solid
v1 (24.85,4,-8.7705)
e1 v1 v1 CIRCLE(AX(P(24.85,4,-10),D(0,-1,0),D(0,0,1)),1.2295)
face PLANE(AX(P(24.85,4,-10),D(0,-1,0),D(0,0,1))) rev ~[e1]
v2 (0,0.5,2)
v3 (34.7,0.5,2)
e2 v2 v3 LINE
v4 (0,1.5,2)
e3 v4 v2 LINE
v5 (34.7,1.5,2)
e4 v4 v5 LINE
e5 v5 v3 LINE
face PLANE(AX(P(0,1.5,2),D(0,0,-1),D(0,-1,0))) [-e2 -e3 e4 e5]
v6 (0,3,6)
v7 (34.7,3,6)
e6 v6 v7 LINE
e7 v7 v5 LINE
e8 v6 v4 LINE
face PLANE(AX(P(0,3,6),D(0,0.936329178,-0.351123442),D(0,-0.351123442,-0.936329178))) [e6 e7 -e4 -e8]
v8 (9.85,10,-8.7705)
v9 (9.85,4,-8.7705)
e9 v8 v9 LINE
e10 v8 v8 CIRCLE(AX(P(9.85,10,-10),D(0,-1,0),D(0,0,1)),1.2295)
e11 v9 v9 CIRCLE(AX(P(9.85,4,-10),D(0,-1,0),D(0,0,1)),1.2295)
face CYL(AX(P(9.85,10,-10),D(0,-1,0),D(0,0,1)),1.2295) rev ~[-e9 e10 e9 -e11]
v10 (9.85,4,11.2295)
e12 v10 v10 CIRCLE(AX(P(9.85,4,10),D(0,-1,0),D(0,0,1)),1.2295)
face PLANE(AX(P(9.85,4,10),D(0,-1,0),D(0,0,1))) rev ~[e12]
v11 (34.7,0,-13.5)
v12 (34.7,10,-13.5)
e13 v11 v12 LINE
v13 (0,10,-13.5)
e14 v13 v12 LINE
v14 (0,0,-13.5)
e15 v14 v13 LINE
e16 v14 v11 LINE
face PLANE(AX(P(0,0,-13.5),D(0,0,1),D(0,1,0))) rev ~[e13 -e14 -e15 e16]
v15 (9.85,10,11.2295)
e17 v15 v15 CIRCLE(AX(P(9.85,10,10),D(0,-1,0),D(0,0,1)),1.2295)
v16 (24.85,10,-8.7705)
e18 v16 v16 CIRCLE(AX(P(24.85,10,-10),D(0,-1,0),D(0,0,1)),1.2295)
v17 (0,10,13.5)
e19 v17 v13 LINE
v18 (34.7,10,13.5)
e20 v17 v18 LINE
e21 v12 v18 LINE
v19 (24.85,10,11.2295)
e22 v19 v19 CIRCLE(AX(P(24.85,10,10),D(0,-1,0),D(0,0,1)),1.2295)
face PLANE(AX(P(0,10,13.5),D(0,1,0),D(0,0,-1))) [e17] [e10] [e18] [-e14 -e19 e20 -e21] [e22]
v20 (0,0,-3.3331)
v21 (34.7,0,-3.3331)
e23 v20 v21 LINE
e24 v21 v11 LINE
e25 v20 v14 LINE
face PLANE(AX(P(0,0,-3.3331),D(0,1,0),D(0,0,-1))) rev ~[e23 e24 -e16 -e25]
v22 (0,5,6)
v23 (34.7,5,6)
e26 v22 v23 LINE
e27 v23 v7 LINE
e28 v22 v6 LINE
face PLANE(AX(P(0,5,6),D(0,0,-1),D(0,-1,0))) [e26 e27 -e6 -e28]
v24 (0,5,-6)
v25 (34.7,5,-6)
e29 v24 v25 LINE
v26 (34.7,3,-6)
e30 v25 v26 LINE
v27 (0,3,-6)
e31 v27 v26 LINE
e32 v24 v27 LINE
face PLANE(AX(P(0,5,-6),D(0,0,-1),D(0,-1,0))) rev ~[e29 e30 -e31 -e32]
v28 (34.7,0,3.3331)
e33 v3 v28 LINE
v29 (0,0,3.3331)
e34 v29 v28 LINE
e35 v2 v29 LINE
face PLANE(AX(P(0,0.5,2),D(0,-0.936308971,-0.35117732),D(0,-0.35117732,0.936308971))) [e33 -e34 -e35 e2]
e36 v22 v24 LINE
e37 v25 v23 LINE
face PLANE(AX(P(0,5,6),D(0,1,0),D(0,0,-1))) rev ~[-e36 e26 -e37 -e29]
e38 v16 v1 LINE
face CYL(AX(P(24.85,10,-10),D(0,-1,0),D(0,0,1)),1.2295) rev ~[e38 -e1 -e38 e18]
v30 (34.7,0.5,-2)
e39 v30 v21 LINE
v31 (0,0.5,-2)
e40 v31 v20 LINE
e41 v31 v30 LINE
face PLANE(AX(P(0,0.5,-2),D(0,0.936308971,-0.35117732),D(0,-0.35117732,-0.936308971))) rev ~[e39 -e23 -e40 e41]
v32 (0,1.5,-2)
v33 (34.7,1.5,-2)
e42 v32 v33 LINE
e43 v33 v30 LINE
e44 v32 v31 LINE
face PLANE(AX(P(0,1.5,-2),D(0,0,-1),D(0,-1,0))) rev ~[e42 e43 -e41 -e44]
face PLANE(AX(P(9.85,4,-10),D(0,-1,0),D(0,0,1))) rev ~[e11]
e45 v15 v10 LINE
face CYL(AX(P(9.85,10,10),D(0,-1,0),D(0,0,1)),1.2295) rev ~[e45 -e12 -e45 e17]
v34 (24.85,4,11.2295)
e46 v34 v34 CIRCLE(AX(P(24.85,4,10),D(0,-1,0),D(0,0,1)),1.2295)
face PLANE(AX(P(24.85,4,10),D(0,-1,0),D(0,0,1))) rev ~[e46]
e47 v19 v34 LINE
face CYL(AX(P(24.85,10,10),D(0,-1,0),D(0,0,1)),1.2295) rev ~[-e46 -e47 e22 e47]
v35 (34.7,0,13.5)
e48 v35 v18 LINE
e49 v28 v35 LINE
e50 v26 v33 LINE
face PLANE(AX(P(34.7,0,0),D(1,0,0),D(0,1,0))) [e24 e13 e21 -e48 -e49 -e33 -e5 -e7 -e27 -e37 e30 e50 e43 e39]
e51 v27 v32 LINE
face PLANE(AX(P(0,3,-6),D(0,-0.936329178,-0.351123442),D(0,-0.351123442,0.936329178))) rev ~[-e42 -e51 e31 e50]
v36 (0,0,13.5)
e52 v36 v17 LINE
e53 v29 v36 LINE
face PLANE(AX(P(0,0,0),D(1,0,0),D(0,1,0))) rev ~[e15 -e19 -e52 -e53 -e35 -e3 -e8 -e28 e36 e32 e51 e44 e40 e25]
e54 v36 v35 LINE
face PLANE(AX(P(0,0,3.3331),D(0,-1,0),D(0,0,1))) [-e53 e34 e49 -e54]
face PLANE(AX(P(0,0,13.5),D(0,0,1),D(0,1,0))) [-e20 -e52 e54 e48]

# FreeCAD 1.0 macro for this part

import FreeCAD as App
import Part
import Sketcher

V = App.Vector

doc = App.newDocument("Part")
body = doc.addObject("PartDesign::Body", "Body")

# Sketch on YZ plane
sketch1 = body.newObject("Sketcher::SketchObject", "Sketch")
sketch1.AttachmentSupport = (doc.getObject("YZ_Plane"), [""])
sketch1.MapMode = "FlatFace"
sketch1.addGeometry(Part.LineSegment(V(3, 6, 0), V(5, 6, 0)), False)
sketch1.addGeometry(Part.LineSegment(V(5, 6, 0), V(5, -6, 0)), False)
sketch1.addGeometry(Part.LineSegment(V(5, -6, 0), V(3, -6, 0)), False)
sketch1.addGeometry(Part.LineSegment(V(3, -6, 0), V(1.5, -2, 0)), False)
sketch1.addGeometry(Part.LineSegment(V(1.5, -2, 0), V(0.5, -2, 0)), False)
sketch1.addGeometry(Part.LineSegment(V(0.5, -2, 0), V(0, -3.3, 0)), False)
sketch1.addGeometry(Part.LineSegment(V(0, -3.3, 0), V(0, -13.5, 0)), False)
sketch1.addGeometry(Part.LineSegment(V(0, -13.5, 0), V(10, -13.5, 0)), False)
sketch1.addGeometry(Part.LineSegment(V(10, -13.5, 0), V(10, 13.5, 0)), False)
sketch1.addGeometry(Part.LineSegment(V(10, 13.5, 0), V(0, 13.5, 0)), False)
sketch1.addGeometry(Part.LineSegment(V(0, 13.5, 0), V(0, 3.3, 0)), False)
sketch1.addGeometry(Part.LineSegment(V(0, 3.3, 0), V(0.5, 2, 0)), False)
sketch1.addGeometry(Part.LineSegment(V(0.5, 2, 0), V(1.5, 2, 0)), False)
sketch1.addGeometry(Part.LineSegment(V(1.5, 2, 0), V(3, 6, 0)), False)
sketch1.addConstraint(Sketcher.Constraint("Coincident", 0, 2, 1, 1))
sketch1.addConstraint(Sketcher.Constraint("Coincident", 1, 2, 2, 1))
sketch1.addConstraint(Sketcher.Constraint("Coincident", 2, 2, 3, 1))
sketch1.addConstraint(Sketcher.Constraint("Coincident", 3, 2, 4, 1))
sketch1.addConstraint(Sketcher.Constraint("Coincident", 4, 2, 5, 1))
sketch1.addConstraint(Sketcher.Constraint("Coincident", 5, 2, 6, 1))
sketch1.addConstraint(Sketcher.Constraint("Coincident", 6, 2, 7, 1))
sketch1.addConstraint(Sketcher.Constraint("Coincident", 7, 2, 8, 1))
sketch1.addConstraint(Sketcher.Constraint("Coincident", 8, 2, 9, 1))
sketch1.addConstraint(Sketcher.Constraint("Coincident", 9, 2, 10, 1))
sketch1.addConstraint(Sketcher.Constraint("Coincident", 10, 2, 11, 1))
sketch1.addConstraint(Sketcher.Constraint("Coincident", 11, 2, 12, 1))
sketch1.addConstraint(Sketcher.Constraint("Coincident", 12, 2, 13, 1))
sketch1.addConstraint(Sketcher.Constraint("Coincident", 13, 2, 0, 1))
sketch1.addConstraint(Sketcher.Constraint("Horizontal", 0))
sketch1.addConstraint(Sketcher.Constraint("Vertical", 1))
sketch1.addConstraint(Sketcher.Constraint("Horizontal", 2))
sketch1.addConstraint(Sketcher.Constraint("Horizontal", 4))
sketch1.addConstraint(Sketcher.Constraint("Vertical", 6))
sketch1.addConstraint(Sketcher.Constraint("Horizontal", 7))
sketch1.addConstraint(Sketcher.Constraint("Vertical", 8))
sketch1.addConstraint(Sketcher.Constraint("Horizontal", 9))
sketch1.addConstraint(Sketcher.Constraint("Vertical", 10))
sketch1.addConstraint(Sketcher.Constraint("Horizontal", 12))
sketch1.addConstraint(Sketcher.Constraint("Symmetric", 6, 2, 9, 2, -1, 1))
sketch1.addConstraint(Sketcher.Constraint("Symmetric", 5, 2, 10, 2, -1))
sketch1.addConstraint(Sketcher.Constraint("Symmetric", 4, 2, 11, 2, -1))
sketch1.addConstraint(Sketcher.Constraint("Symmetric", 2, 2, 13, 2, -1))
sketch1.addConstraint(Sketcher.Constraint("Parallel", 3, 11))
sketch1.addConstraint(Sketcher.Constraint("Parallel", 5, 13))
sketch1.addConstraint(Sketcher.Constraint("DistanceX", 0, 1, 0, 2, 2.0))
sketch1.addConstraint(Sketcher.Constraint("DistanceX", 4, 2, 4, 1, 1.0))
sketch1.addConstraint(Sketcher.Constraint("DistanceX", 7, 1, 7, 2, 10.0))
sketch1.addConstraint(Sketcher.Constraint("DistanceX", -1, 1, 0, 2, 5.0))
sketch1.addConstraint(Sketcher.Constraint("DistanceY", -1, 1, 0, 2, 6.0))
sketch1.addConstraint(Sketcher.Constraint("DistanceY", 3, 2, -1, 1, 2.0))
sketch1.addConstraint(Sketcher.Constraint("DistanceY", 6, 2, -1, 1, 13.5))
sketch1.addConstraint(Sketcher.Constraint("DistanceX", -1, 1, 3, 2, 1.5))
pad1 = body.newObject("PartDesign::Pad", "Pad")
pad1.Profile = sketch1
pad1.Length = 34.7

# Sketch on XZ plane
sketch2 = body.newObject("Sketcher::SketchObject", "Sketch001")
sketch2.AttachmentSupport = (doc.getObject("XZ_Plane"), [""])
sketch2.MapMode = "FlatFace"
sketch2.AttachmentOffset = App.Placement(V(0, 0, -10), App.Rotation())
sketch2.addGeometry(Part.Circle(V(9.8, 10, 0), V(0, 0, 1), 1.2), False)
sketch2.addGeometry(Part.Circle(V(9.8, -10, 0), V(0, 0, 1), 1.2), False)
sketch2.addGeometry(Part.Circle(V(24.9, -10, 0), V(0, 0, 1), 1.2), False)
sketch2.addGeometry(Part.Circle(V(24.9, 10, 0), V(0, 0, 1), 1.2), False)
sketch2.addConstraint(Sketcher.Constraint("Equal", 0, 1))
sketch2.addConstraint(Sketcher.Constraint("Equal", 1, 2))
sketch2.addConstraint(Sketcher.Constraint("Equal", 2, 3))
sketch2.addConstraint(Sketcher.Constraint("Symmetric", 0, 3, 1, 3, -1))
sketch2.addConstraint(Sketcher.Constraint("Symmetric", 2, 3, 3, 3, -1))
sketch2.addConstraint(Sketcher.Constraint("Horizontal", 1, 3, 2, 3))
sketch2.addConstraint(Sketcher.Constraint("Diameter", 0, 2.459))
sketch2.addConstraint(Sketcher.Constraint("DistanceY", -1, 1, 0, 3, 10.0))
sketch2.addConstraint(Sketcher.Constraint("DistanceX", 1, 3, 2, 3, 15.0))
sketch2.addConstraint(Sketcher.Constraint("DistanceX", -1, 1, 0, 3, 9.85))
doc.recompute()
hole = body.newObject("PartDesign::Hole", "Hole")
hole.Profile = sketch2
hole.ThreadType = "None"
hole.Diameter = 2.459
hole.DepthType = "Dimension"
hole.Depth = 6
hole.DrillPoint = "Flat"
hole.Reversed = True

doc.recompute()
